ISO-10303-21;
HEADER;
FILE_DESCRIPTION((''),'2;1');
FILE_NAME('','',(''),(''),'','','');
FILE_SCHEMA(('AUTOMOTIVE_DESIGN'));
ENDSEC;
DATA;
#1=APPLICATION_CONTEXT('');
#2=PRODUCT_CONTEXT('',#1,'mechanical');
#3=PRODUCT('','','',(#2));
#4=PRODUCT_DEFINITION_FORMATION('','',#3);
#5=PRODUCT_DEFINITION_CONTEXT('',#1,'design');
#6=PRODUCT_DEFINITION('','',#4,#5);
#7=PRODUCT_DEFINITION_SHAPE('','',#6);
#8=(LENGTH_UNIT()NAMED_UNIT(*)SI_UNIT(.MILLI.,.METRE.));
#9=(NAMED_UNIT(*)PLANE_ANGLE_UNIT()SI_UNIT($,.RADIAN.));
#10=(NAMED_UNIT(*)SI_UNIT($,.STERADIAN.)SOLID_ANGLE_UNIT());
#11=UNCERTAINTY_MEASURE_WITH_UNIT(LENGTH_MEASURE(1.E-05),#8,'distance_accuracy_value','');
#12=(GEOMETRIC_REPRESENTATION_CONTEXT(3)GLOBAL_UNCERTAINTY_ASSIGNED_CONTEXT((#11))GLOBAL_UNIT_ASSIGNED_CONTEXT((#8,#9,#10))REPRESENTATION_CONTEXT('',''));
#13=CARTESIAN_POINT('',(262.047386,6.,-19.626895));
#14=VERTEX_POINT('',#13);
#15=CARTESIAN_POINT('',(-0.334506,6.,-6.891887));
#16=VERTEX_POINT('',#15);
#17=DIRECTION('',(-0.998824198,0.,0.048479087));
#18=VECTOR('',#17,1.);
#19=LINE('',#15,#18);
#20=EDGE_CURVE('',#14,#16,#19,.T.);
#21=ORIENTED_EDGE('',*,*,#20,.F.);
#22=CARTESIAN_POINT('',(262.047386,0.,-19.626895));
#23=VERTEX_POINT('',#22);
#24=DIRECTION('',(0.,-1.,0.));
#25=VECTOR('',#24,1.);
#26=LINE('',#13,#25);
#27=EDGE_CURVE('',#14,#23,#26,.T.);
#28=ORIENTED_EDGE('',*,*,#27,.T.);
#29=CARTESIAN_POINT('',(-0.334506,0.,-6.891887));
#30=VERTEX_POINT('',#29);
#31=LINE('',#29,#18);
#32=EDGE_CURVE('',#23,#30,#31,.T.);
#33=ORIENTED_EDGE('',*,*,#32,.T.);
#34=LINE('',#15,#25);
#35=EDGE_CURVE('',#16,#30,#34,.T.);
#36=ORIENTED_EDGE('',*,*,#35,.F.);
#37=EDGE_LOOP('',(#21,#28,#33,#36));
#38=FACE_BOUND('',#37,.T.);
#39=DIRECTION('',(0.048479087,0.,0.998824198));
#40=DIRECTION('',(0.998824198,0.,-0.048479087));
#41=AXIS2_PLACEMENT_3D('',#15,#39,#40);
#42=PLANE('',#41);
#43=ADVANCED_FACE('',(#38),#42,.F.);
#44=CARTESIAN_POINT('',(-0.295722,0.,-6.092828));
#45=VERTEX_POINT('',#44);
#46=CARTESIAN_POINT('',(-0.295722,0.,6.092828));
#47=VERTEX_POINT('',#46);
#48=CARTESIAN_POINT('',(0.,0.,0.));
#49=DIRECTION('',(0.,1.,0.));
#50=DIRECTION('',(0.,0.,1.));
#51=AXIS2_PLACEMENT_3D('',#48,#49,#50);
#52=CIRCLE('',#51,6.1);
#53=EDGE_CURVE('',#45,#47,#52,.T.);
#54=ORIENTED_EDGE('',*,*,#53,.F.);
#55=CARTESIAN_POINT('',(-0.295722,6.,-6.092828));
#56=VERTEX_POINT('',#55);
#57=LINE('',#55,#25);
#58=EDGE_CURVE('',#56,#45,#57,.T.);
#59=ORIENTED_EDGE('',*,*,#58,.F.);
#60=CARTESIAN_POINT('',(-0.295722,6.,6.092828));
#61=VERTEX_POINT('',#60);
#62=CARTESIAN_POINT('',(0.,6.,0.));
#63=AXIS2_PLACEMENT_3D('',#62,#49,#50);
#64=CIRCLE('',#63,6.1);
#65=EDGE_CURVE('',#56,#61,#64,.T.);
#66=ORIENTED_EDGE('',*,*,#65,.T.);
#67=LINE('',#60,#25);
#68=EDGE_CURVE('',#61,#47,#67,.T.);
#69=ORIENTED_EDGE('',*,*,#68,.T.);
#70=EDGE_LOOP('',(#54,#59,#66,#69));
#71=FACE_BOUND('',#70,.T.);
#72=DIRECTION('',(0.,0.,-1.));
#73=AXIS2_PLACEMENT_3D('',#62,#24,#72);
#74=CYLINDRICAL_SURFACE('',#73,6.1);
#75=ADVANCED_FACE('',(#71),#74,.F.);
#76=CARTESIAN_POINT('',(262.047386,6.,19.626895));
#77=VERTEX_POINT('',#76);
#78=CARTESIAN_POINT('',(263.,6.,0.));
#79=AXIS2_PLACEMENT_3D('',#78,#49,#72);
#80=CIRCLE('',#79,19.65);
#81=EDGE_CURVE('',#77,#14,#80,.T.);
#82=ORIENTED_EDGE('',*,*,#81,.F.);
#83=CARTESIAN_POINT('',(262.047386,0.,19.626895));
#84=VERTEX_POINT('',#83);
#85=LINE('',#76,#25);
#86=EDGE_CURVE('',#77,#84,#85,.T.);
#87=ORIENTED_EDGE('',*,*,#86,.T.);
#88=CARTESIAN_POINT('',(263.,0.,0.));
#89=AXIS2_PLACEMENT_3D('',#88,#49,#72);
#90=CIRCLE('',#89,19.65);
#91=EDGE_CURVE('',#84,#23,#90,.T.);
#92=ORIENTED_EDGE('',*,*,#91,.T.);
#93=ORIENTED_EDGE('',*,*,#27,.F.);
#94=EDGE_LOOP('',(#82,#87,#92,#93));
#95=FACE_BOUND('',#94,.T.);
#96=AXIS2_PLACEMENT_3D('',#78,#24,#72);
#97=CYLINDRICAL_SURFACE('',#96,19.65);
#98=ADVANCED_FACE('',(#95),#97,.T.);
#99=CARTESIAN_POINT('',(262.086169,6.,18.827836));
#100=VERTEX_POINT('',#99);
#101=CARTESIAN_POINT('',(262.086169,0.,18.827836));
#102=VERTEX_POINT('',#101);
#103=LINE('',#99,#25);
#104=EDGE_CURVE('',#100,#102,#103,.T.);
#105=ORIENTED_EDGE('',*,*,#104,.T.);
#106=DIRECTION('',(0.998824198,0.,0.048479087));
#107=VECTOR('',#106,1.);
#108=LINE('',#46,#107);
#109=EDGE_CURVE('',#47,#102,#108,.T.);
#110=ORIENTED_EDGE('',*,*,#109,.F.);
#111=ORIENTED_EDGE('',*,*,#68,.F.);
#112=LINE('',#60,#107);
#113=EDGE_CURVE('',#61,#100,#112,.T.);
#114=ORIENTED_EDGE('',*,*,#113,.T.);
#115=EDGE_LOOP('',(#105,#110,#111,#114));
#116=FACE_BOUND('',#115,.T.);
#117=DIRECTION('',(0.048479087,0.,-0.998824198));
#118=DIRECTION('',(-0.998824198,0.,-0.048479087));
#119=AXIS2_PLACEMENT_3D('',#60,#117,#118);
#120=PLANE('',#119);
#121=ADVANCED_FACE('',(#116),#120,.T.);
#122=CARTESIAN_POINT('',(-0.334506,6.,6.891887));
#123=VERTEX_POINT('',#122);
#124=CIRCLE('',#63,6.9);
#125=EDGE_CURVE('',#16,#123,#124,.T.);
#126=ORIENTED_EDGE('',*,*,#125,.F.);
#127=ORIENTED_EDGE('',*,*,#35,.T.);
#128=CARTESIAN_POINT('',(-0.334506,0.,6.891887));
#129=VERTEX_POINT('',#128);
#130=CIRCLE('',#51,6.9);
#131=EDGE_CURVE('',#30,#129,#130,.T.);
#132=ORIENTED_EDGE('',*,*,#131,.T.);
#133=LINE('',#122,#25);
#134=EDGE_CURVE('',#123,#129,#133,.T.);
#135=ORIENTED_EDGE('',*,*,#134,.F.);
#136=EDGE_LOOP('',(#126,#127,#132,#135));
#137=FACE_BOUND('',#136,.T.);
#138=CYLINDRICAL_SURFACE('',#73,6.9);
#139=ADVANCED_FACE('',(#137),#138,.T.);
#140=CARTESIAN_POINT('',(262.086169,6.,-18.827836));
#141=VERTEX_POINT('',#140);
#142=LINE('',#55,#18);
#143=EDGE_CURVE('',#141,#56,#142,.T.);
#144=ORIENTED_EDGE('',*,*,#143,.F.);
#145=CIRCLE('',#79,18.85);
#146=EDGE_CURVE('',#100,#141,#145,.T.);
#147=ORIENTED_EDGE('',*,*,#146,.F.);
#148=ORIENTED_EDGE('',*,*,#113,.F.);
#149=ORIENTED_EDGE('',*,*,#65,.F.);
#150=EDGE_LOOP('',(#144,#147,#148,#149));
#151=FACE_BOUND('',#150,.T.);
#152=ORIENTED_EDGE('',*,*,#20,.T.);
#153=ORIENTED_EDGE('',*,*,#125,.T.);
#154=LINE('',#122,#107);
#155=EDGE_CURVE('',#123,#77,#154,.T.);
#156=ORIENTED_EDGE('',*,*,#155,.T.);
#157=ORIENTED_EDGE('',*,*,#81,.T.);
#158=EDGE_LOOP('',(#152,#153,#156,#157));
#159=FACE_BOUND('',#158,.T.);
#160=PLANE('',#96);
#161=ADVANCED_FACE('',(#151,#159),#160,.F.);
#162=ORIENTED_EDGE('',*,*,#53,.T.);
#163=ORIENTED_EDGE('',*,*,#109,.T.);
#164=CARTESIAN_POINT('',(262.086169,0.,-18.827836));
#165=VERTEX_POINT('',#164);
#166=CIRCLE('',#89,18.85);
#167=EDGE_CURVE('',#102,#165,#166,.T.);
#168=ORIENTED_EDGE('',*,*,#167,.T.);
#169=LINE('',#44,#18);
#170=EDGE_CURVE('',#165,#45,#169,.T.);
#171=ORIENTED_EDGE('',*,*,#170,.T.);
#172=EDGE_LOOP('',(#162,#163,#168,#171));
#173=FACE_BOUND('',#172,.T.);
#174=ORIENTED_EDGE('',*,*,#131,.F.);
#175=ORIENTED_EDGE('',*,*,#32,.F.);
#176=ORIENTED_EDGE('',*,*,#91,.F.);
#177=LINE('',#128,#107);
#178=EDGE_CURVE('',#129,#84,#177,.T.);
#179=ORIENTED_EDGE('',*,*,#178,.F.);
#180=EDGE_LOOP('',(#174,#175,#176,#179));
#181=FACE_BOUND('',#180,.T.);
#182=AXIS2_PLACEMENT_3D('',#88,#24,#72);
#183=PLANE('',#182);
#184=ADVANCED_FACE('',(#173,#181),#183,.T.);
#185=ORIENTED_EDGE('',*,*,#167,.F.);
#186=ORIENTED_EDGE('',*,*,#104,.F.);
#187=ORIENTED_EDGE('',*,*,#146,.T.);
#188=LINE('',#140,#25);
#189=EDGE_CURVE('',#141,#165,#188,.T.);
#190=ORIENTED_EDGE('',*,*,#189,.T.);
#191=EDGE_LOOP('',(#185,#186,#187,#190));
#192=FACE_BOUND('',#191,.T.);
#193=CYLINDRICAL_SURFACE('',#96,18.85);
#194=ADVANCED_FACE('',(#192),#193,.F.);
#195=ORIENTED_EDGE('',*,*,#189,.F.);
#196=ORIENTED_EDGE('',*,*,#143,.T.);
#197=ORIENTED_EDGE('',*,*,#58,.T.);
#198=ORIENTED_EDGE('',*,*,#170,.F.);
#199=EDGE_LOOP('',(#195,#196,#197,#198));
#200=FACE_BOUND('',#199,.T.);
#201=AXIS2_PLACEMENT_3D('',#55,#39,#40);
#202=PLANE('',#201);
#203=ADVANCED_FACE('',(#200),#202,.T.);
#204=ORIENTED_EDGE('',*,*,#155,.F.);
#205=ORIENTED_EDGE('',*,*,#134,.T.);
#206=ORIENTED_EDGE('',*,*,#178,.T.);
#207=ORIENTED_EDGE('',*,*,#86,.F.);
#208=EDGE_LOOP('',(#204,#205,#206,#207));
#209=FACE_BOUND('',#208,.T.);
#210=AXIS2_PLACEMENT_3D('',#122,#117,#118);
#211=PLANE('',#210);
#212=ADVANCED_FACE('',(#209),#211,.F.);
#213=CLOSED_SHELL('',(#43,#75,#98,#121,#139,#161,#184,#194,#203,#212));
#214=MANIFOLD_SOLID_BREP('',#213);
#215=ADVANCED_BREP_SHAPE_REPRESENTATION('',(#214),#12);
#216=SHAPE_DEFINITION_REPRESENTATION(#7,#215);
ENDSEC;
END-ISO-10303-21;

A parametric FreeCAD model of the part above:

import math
import FreeCAD as App
import Part
import Sketcher
from FreeCAD import Vector
Q = App.Units.Quantity

doc = App.newDocument("Part")
params = doc.addObject("Spreadsheet::Sheet", "Params")
for row, (alias, value) in enumerate([
    ("sketch1_radius", "6.9 mm"),
    ("sketch1_radius2", "6.1 mm"),
    ("sketch1_radius3", "19.65 mm"),
    ("pad1_length", "6 mm"),
], start=1):
    params.set(f"A{row}", alias)
    params.set(f"B{row}", "=" + value)
    params.setAlias(f"B{row}", alias)

body = doc.addObject("PartDesign::Body", "Body")

sketch1 = doc.addObject("Sketcher::SketchObject", "Sketch")
body.addObject(sketch1)
sketch1.AttachmentSupport = (doc.XZ_Plane, [""])
sketch1.MapMode = "FlatFace"
sketch1.addGeometry([
    Part.LineSegment(Vector(-0.334506, 6.891887, 0), Vector(262.047386, 19.626895, 0)),
    Part.ArcOfCircle(Part.Circle(Vector(263, 0, 0), Vector(0, 0, 1), 19.65), math.radians(-92.778736), math.radians(92.778736)),
    Part.LineSegment(Vector(262.047386, -19.626895, 0), Vector(-0.334506, -6.891887, 0)),
    Part.ArcOfCircle(Part.Circle(Vector(0, 0, 0), Vector(0, 0, 1), 6.9), math.radians(92.778736), math.radians(267.221264)),
    Part.ArcOfCircle(Part.Circle(Vector(0, 0, 0), Vector(0, 0, 1), 6.1), math.radians(92.778736), math.radians(267.221264)),
    Part.LineSegment(Vector(-0.295722, -6.092828, 0), Vector(262.086169, -18.827836, 0)),
    Part.ArcOfCircle(Part.Circle(Vector(263, 0, 0), Vector(0, 0, 1), 18.85), math.radians(-92.778736), math.radians(92.778736)),
    Part.LineSegment(Vector(262.086169, 18.827836, 0), Vector(-0.295722, 6.092828, 0)),
], False)
sketch1.addConstraint([
    Sketcher.Constraint("Tangent", 0, 2, 1, 2),
    Sketcher.Constraint("Tangent", 1, 1, 2, 1),
    Sketcher.Constraint("Tangent", 2, 2, 3, 2),
    Sketcher.Constraint("Tangent", 3, 1, 0, 1),
    Sketcher.Constraint("Tangent", 4, 2, 5, 1),
    Sketcher.Constraint("Tangent", 5, 2, 6, 1),
    Sketcher.Constraint("Tangent", 6, 2, 7, 1),
    Sketcher.Constraint("Tangent", 7, 2, 4, 1),
    Sketcher.Constraint("Coincident", 3, 3, -1, 1),
    Sketcher.Constraint("Coincident", 4, 3, -1, 1),
    Sketcher.Constraint("Coincident", 6, 3, 1, 3),
    Sketcher.Constraint("PointOnObject", 1, 3, -1),
    Sketcher.Constraint("Parallel", 2, 5),
    Sketcher.Constraint("Radius", 3, Q("6.9 mm")),
    Sketcher.Constraint("Radius", 4, Q("6.1 mm")),
    Sketcher.Constraint("Radius", 1, Q("19.65 mm")),
    Sketcher.Constraint("DistanceX", -1, 1, 1, 3, Q("263 mm")),
])
sketch1.setExpression("Constraints[13]", "Params.sketch1_radius")
sketch1.setExpression("Constraints[14]", "Params.sketch1_radius2")
sketch1.setExpression("Constraints[15]", "Params.sketch1_radius3")
pad1 = doc.addObject("PartDesign::Pad", "Pad")
body.addObject(pad1)
pad1.Profile = sketch1
pad1.setExpression("Length", "Params.pad1_length")
pad1.Reversed = True

doc.recompute()
